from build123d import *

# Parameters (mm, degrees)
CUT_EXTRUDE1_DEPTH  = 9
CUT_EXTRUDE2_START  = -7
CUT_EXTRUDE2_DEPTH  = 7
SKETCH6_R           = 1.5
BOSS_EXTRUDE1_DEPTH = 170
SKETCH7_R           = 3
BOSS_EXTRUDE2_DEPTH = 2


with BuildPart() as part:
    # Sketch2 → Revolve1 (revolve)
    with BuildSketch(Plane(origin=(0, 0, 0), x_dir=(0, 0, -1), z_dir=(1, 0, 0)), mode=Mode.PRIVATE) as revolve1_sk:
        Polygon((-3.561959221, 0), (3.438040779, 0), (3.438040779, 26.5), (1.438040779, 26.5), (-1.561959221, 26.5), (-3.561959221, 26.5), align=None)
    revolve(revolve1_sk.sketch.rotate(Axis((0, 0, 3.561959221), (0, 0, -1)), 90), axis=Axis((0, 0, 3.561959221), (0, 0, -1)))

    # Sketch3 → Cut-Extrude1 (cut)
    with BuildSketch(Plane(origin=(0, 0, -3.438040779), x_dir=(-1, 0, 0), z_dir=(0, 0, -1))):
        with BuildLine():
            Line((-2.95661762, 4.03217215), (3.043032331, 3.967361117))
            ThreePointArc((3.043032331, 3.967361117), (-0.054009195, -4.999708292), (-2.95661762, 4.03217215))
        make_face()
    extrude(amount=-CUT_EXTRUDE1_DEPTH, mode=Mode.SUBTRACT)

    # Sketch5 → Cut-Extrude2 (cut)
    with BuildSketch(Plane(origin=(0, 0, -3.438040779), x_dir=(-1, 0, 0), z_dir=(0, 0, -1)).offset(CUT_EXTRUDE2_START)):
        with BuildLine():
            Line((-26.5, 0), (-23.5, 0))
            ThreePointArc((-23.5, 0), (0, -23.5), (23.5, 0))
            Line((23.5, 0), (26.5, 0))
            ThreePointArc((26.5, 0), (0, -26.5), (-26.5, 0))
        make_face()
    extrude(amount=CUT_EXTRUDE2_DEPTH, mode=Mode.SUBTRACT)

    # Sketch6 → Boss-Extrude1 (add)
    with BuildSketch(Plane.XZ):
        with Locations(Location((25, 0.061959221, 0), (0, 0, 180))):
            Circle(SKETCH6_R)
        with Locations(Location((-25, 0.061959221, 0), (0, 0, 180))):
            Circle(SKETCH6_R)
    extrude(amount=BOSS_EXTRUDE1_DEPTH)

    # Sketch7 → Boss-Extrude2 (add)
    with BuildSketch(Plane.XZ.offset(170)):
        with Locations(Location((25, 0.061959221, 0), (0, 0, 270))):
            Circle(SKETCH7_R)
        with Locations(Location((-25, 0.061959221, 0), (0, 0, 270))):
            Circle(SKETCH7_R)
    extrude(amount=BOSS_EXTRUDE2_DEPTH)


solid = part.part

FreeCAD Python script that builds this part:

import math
import FreeCAD as App
import Part
import Sketcher
Q = App.Units.Quantity

doc = App.newDocument("Part")
body = doc.addObject("PartDesign::Body", "Body")

# Sketch on YZ plane
sketch1 = doc.addObject("Sketcher::SketchObject", "Sketch")
body.addObject(sketch1)
sketch1.AttachmentSupport = (doc.YZ_Plane, [""])
sketch1.MapMode = "FlatFace"
sketch1.addGeometry(Part.LineSegment(App.Vector(0, 4, 0), App.Vector(0, -3, 0)), False)
sketch1.addGeometry(Part.LineSegment(App.Vector(0, -3, 0), App.Vector(26, -3, 0)), False)
sketch1.addGeometry(Part.LineSegment(App.Vector(26, -3, 0), App.Vector(26, 4, 0)), False)
sketch1.addGeometry(Part.LineSegment(App.Vector(26, 4, 0), App.Vector(0, 4, 0)), False)
sketch1.addConstraint(Sketcher.Constraint("Coincident", 0, 2, 1, 1))
sketch1.addConstraint(Sketcher.Constraint("Coincident", 1, 2, 2, 1))
sketch1.addConstraint(Sketcher.Constraint("Coincident", 2, 2, 3, 1))
sketch1.addConstraint(Sketcher.Constraint("Coincident", 3, 2, 0, 1))
sketch1.addConstraint(Sketcher.Constraint("Vertical", 0))
sketch1.addConstraint(Sketcher.Constraint("Horizontal", 1))
sketch1.addConstraint(Sketcher.Constraint("Vertical", 2))
sketch1.addConstraint(Sketcher.Constraint("Horizontal", 3))
sketch1.addConstraint(Sketcher.Constraint("PointOnObject", 0, 2, -2))
sketch1.addConstraint(Sketcher.Constraint("DistanceY", 0, 2, 0, 1, Q("7 mm")))
sketch1.addConstraint(Sketcher.Constraint("DistanceX", 1, 1, 1, 2, Q("26.5 mm")))
sketch1.addConstraint(Sketcher.Constraint("DistanceY", 0, 2, -1, 1, Q("3.438041 mm")))
revolution = doc.addObject("PartDesign::Revolution", "Revolution")
body.addObject(revolution)
revolution.Profile = sketch1
revolution.ReferenceAxis = (sketch1, ["V_Axis"])
revolution.Angle = 360

# Sketch on XY plane
sketch2 = doc.addObject("Sketcher::SketchObject", "Sketch001")
body.addObject(sketch2)
sketch2.AttachmentSupport = (doc.XY_Plane, [""])
sketch2.MapMode = "FlatFace"
sketch2.AttachmentOffset = App.Placement(App.Vector(0, 0, -3.438041), App.Rotation())
sketch2.addGeometry(Part.LineSegment(App.Vector(-3, 4, 0), App.Vector(3, 4, 0)), False)
sketch2.addGeometry(Part.ArcOfCircle(Part.Circle(App.Vector(0, 0, 0), App.Vector(0, 0, 1), 5), math.radians(127), math.radians(414)), False)
sketch2.addConstraint(Sketcher.Constraint("Coincident", 0, 1, 1, 1))
sketch2.addConstraint(Sketcher.Constraint("Coincident", 1, 2, 0, 2))
sketch2.addConstraint(Sketcher.Constraint("Coincident", 1, 3, -1, 1))
sketch2.addConstraint(Sketcher.Constraint("Radius", 1, Q("5 mm")))
sketch2.addConstraint(Sketcher.Constraint("Distance", 0, Q("6 mm")))
sketch2.addConstraint(Sketcher.Constraint("DistanceY", -1, 1, 0, 1, Q("3.967361 mm")))
pocket1 = doc.addObject("PartDesign::Pocket", "Pocket")
body.addObject(pocket1)
pocket1.Profile = sketch2
pocket1.Length = 9
pocket1.Reversed = True

# Sketch on XY plane
sketch3 = doc.addObject("Sketcher::SketchObject", "Sketch002")
body.addObject(sketch3)
sketch3.AttachmentSupport = (doc.XY_Plane, [""])
sketch3.MapMode = "FlatFace"
sketch3.AttachmentOffset = App.Placement(App.Vector(0, 0, 3.561959), App.Rotation())
sketch3.addGeometry(Part.LineSegment(App.Vector(23.5, 0, 0), App.Vector(26.5, 0, 0)), False)
sketch3.addGeometry(Part.ArcOfCircle(Part.Circle(App.Vector(0, 0, 0), App.Vector(0, 0, 1), 26.5), math.radians(180), math.radians(360)), False)
sketch3.addGeometry(Part.LineSegment(App.Vector(-26.5, 0, 0), App.Vector(-23.5, 0, 0)), False)
sketch3.addGeometry(Part.ArcOfCircle(Part.Circle(App.Vector(0, 0, 0), App.Vector(0, 0, 1), 23.5), math.radians(180), math.radians(360)), False)
sketch3.addConstraint(Sketcher.Constraint("Coincident", 0, 2, 1, 2))
sketch3.addConstraint(Sketcher.Constraint("Coincident", 1, 1, 2, 1))
sketch3.addConstraint(Sketcher.Constraint("Coincident", 2, 2, 3, 1))
sketch3.addConstraint(Sketcher.Constraint("Coincident", 3, 2, 0, 1))
sketch3.addConstraint(Sketcher.Constraint("Horizontal", 0))
sketch3.addConstraint(Sketcher.Constraint("Horizontal", 2))
sketch3.addConstraint(Sketcher.Constraint("Coincident", 1, 3, -1, 1))
sketch3.addConstraint(Sketcher.Constraint("Coincident", 3, 3, -1, 1))
sketch3.addConstraint(Sketcher.Constraint("PointOnObject", 0, 2, -1))
sketch3.addConstraint(Sketcher.Constraint("PointOnObject", 1, 1, -1))
sketch3.addConstraint(Sketcher.Constraint("Radius", 1, Q("26.5 mm")))
sketch3.addConstraint(Sketcher.Constraint("Radius", 3, Q("23.5 mm")))
pocket2 = doc.addObject("PartDesign::Pocket", "Pocket001")
body.addObject(pocket2)
pocket2.Profile = sketch3
pocket2.Length = 7

# Sketch on XZ plane
sketch4 = doc.addObject("Sketcher::SketchObject", "Sketch003")
body.addObject(sketch4)
sketch4.AttachmentSupport = (doc.XZ_Plane, [""])
sketch4.MapMode = "FlatFace"
sketch4.addGeometry(Part.Circle(App.Vector(25, 0.1, 0), App.Vector(0, 0, 1), 1.5), False)
sketch4.addGeometry(Part.Circle(App.Vector(-25, 0.1, 0), App.Vector(0, 0, 1), 1.5), False)
sketch4.addConstraint(Sketcher.Constraint("Equal", 0, 1))
sketch4.addConstraint(Sketcher.Constraint("Symmetric", 0, 3, 1, 3, -2))
sketch4.addConstraint(Sketcher.Constraint("Diameter", 0, Q("3 mm")))
sketch4.addConstraint(Sketcher.Constraint("DistanceX", -1, 1, 0, 3, Q("25 mm")))
sketch4.addConstraint(Sketcher.Constraint("DistanceY", -1, 1, 0, 3, Q("0.061959 mm")))
pad1 = doc.addObject("PartDesign::Pad", "Pad")
body.addObject(pad1)
pad1.Profile = sketch4
pad1.Length = 170

# Sketch on XZ plane
sketch5 = doc.addObject("Sketcher::SketchObject", "Sketch004")
body.addObject(sketch5)
sketch5.AttachmentSupport = (doc.XZ_Plane, [""])
sketch5.MapMode = "FlatFace"
sketch5.AttachmentOffset = App.Placement(App.Vector(0, 0, 170), App.Rotation())
sketch5.addGeometry(Part.Circle(App.Vector(25, 0.1, 0), App.Vector(0, 0, 1), 3), False)
sketch5.addGeometry(Part.Circle(App.Vector(-25, 0.1, 0), App.Vector(0, 0, 1), 3), False)
sketch5.addConstraint(Sketcher.Constraint("Equal", 0, 1))
sketch5.addConstraint(Sketcher.Constraint("Symmetric", 0, 3, 1, 3, -2))
sketch5.addConstraint(Sketcher.Constraint("Diameter", 0, Q("6 mm")))
sketch5.addConstraint(Sketcher.Constraint("DistanceX", -1, 1, 0, 3, Q("25 mm")))
sketch5.addConstraint(Sketcher.Constraint("DistanceY", -1, 1, 0, 3, Q("0.061959 mm")))
pad2 = doc.addObject("PartDesign::Pad", "Pad001")
body.addObject(pad2)
pad2.Profile = sketch5
pad2.Length = 2

doc.recompute()
